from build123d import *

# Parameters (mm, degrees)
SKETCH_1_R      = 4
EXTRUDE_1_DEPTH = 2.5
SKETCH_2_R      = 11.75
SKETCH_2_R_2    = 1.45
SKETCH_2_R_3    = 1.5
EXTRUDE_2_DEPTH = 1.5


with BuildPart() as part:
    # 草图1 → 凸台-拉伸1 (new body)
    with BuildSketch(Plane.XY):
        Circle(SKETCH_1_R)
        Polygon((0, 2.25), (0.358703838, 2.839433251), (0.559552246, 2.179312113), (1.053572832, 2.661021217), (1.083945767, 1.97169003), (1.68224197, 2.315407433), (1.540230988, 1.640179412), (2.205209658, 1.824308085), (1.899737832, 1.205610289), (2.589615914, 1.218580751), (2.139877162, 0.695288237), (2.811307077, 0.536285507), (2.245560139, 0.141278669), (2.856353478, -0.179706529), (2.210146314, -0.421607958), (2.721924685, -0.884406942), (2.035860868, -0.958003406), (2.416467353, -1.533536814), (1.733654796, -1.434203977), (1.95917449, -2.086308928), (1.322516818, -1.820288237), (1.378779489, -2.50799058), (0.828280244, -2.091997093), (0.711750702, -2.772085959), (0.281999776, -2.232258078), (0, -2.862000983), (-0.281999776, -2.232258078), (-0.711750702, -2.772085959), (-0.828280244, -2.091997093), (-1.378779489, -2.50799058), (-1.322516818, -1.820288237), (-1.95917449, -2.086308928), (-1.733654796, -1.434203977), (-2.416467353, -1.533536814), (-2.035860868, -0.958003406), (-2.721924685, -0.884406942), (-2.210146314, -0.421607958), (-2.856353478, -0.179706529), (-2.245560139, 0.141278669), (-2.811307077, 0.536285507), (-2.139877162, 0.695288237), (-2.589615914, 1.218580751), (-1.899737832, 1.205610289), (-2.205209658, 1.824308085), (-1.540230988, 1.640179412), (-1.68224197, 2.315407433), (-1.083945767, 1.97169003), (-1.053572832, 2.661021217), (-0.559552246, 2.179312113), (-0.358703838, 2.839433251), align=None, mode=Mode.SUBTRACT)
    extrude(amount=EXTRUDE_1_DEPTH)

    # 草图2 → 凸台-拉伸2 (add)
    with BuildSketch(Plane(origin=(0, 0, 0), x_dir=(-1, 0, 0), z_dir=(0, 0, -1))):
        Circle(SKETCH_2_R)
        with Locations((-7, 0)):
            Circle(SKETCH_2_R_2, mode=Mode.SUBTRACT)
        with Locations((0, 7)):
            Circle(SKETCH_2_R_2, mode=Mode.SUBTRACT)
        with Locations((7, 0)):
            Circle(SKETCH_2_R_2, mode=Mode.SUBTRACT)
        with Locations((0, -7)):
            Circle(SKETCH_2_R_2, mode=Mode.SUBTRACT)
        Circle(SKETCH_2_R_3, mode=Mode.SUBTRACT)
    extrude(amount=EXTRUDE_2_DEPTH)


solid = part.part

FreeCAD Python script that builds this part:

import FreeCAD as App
import Part
import Sketcher

V = App.Vector


def add_polygon(sketch, points):
    """Adds a closed chain of lines whose ends are joined by coincident constraints."""
    first, n = sketch.GeometryCount, len(points)
    for a, b in zip(points, points[1:] + points[:1]):
        sketch.addGeometry(Part.LineSegment(App.Vector(*a, 0), App.Vector(*b, 0)), False)
    for i in range(n):
        sketch.addConstraint(Sketcher.Constraint("Coincident", first + i, 2, first + (i + 1) % n, 1))

doc = App.newDocument("Part")
body = doc.addObject("PartDesign::Body", "Body")

sketch1 = doc.addObject("Sketcher::SketchObject", "Sketch")
body.addObject(sketch1)
sketch1.AttachmentSupport = (doc.XY_Plane, [""])
sketch1.MapMode = "FlatFace"
sketch1.addGeometry(Part.Circle(V(0, 0, 0), V(0, 0, 1), 4), False)
add_polygon(sketch1, [(-0.358704, 2.839433), (0, 2.25), (0.358704, 2.839433), (0.559552, 2.179312), (1.053573, 2.661021), (1.083946, 1.97169), (1.682242, 2.315407), (1.540231, 1.640179), (2.20521, 1.824308), (1.899738, 1.20561), (2.589616, 1.218581), (2.139877, 0.695288), (2.811307, 0.536286), (2.24556, 0.141279), (2.856353, -0.179707), (2.210146, -0.421608), (2.721925, -0.884407), (2.035861, -0.958003), (2.416467, -1.533537), (1.733655, -1.434204), (1.959174, -2.086309), (1.322517, -1.820288), (1.378779, -2.507991), (0.82828, -2.091997), (0.711751, -2.772086), (0.282, -2.232258), (0, -2.862001), (-0.282, -2.232258), (-0.711751, -2.772086), (-0.82828, -2.091997), (-1.378779, -2.507991), (-1.322517, -1.820288), (-1.959174, -2.086309), (-1.733655, -1.434204), (-2.416467, -1.533537), (-2.035861, -0.958003), (-2.721925, -0.884407), (-2.210146, -0.421608), (-2.856353, -0.179707), (-2.24556, 0.141279), (-2.811307, 0.536286), (-2.139877, 0.695288), (-2.589616, 1.218581), (-1.899738, 1.20561), (-2.20521, 1.824308), (-1.540231, 1.640179), (-1.682242, 2.315407), (-1.083946, 1.97169), (-1.053573, 2.661021), (-0.559552, 2.179312)])
sketch1.addConstraint([
    Sketcher.Constraint("Coincident", 0, 3, -1, 1),
    Sketcher.Constraint("Symmetric", 25, 2, 27, 2, -2),
    Sketcher.Constraint("Symmetric", 24, 2, 28, 2, -2),
    Sketcher.Constraint("Symmetric", 23, 2, 29, 2, -2),
    Sketcher.Constraint("Symmetric", 22, 2, 30, 2, -2),
    Sketcher.Constraint("Symmetric", 21, 2, 31, 2, -2),
    Sketcher.Constraint("Symmetric", 20, 2, 32, 2, -2),
    Sketcher.Constraint("Symmetric", 19, 2, 33, 2, -2),
    Sketcher.Constraint("Symmetric", 18, 2, 34, 2, -2),
    Sketcher.Constraint("Symmetric", 17, 2, 35, 2, -2),
    Sketcher.Constraint("Symmetric", 16, 2, 36, 2, -2),
    Sketcher.Constraint("Symmetric", 15, 2, 37, 2, -2),
    Sketcher.Constraint("Symmetric", 14, 2, 38, 2, -2),
    Sketcher.Constraint("Symmetric", 13, 2, 39, 2, -2),
    Sketcher.Constraint("Symmetric", 12, 2, 40, 2, -2),
    Sketcher.Constraint("Symmetric", 11, 2, 41, 2, -2),
    Sketcher.Constraint("Symmetric", 10, 2, 42, 2, -2),
    Sketcher.Constraint("Symmetric", 9, 2, 43, 2, -2),
    Sketcher.Constraint("Symmetric", 8, 2, 44, 2, -2),
    Sketcher.Constraint("Symmetric", 7, 2, 45, 2, -2),
    Sketcher.Constraint("Symmetric", 6, 2, 46, 2, -2),
    Sketcher.Constraint("Symmetric", 5, 2, 47, 2, -2),
    Sketcher.Constraint("Symmetric", 4, 2, 48, 2, -2),
    Sketcher.Constraint("Symmetric", 3, 2, 49, 2, -2),
    Sketcher.Constraint("Symmetric", 2, 2, 50, 2, -2),
    Sketcher.Constraint("PointOnObject", 1, 2, -2),
    Sketcher.Constraint("PointOnObject", 26, 2, -2),
    Sketcher.Constraint("Equal", 2, 3),
    Sketcher.Constraint("Equal", 3, 4),
    Sketcher.Constraint("Equal", 4, 5),
    Sketcher.Constraint("Equal", 5, 6),
    Sketcher.Constraint("Equal", 6, 7),
    Sketcher.Constraint("Equal", 7, 8),
    Sketcher.Constraint("Equal", 8, 9),
    Sketcher.Constraint("Equal", 9, 10),
    Sketcher.Constraint("Equal", 10, 11),
    Sketcher.Constraint("Equal", 11, 12),
    Sketcher.Constraint("Equal", 12, 13),
    Sketcher.Constraint("Equal", 13, 14),
    Sketcher.Constraint("Equal", 14, 15),
    Sketcher.Constraint("Equal", 15, 16),
    Sketcher.Constraint("Equal", 16, 17),
    Sketcher.Constraint("Equal", 17, 18),
    Sketcher.Constraint("Equal", 18, 19),
    Sketcher.Constraint("Equal", 19, 20),
    Sketcher.Constraint("Equal", 20, 21),
    Sketcher.Constraint("Equal", 21, 22),
    Sketcher.Constraint("Equal", 22, 23),
    Sketcher.Constraint("Equal", 23, 24),
    Sketcher.Constraint("Equal", 24, 25),
    Sketcher.Constraint("Equal", 25, 26),
    Sketcher.Constraint("Diameter", 0, 8.0),
    Sketcher.Constraint("Distance", 1, 0.69),
    Sketcher.Constraint("DistanceY", -1, 1, 1, 2, 2.25),
    Sketcher.Constraint("DistanceX", -1, 1, 25, 2, 0.282),
    Sketcher.Constraint("DistanceY", 26, 2, -1, 1, 2.862001),
    Sketcher.Constraint("DistanceY", 8, 2, 6, 2, 0.491099),
    Sketcher.Constraint("DistanceY", 9, 2, 3, 2, 0.973702),
    Sketcher.Constraint("DistanceY", 10, 2, 7, 2, 0.421599),
    Sketcher.Constraint("DistanceY", 11, 2, 5, 2, 1.276402),
    Sketcher.Constraint("DistanceY", 13, 2, 7, 2, 1.498901),
    Sketcher.Constraint("DistanceY", 15, 2, 14, 2, 0.241901),
    Sketcher.Constraint("DistanceY", 16, 2, 15, 2, 0.462799),
    Sketcher.Constraint("DistanceX", 17, 2, 13, 2, 0.209699),
    Sketcher.Constraint("DistanceY", 19, 2, 17, 2, 0.476201),
    Sketcher.Constraint("DistanceY", 20, 2, 16, 2, 1.201902),
    Sketcher.Constraint("DistanceX", 23, 2, 22, 2, 0.550499),
    Sketcher.Constraint("DistanceX", 28, 2, 24, 2, 1.423501),
    Sketcher.Constraint("DistanceX", 38, 2, 33, 2, 1.122699),
    Sketcher.Constraint("DistanceY", -1, 1, 4, 2, 2.661021),
    Sketcher.Constraint("DistanceY", -1, 1, 5, 2, 1.97169),
    Sketcher.Constraint("DistanceX", -1, 1, 6, 2, 1.682242),
    Sketcher.Constraint("DistanceX", -1, 1, 7, 2, 1.540231),
    Sketcher.Constraint("DistanceY", -1, 1, 7, 2, 1.640179),
    Sketcher.Constraint("DistanceY", -1, 1, 9, 2, 1.20561),
    Sketcher.Constraint("DistanceX", -1, 1, 13, 2, 2.24556),
    Sketcher.Constraint("DistanceY", 20, 2, -1, 1, 2.086309),
    Sketcher.Constraint("DistanceY", 21, 2, -1, 1, 1.820288),
])
pad1 = doc.addObject("PartDesign::Pad", "Pad")
body.addObject(pad1)
pad1.Profile = sketch1
pad1.Length = 2.5

sketch2 = doc.addObject("Sketcher::SketchObject", "Sketch001")
body.addObject(sketch2)
sketch2.AttachmentSupport = (doc.XY_Plane, [""])
sketch2.MapMode = "FlatFace"
sketch2.addGeometry([
    Part.Circle(V(0, 0, 0), V(0, 0, 1), 11.8),
    Part.Circle(V(0, -7, 0), V(0, 0, 1), 1.4),
    Part.Circle(V(7, 0, 0), V(0, 0, 1), 1.4),
    Part.Circle(V(0, 0, 0), V(0, 0, 1), 1.5),
    Part.Circle(V(-7, 0, 0), V(0, 0, 1), 1.4),
    Part.Circle(V(0, 7, 0), V(0, 0, 1), 1.4),
], False)
sketch2.addConstraint([
    Sketcher.Constraint("Coincident", 0, 3, -1, 1),
    Sketcher.Constraint("Coincident", 3, 3, -1, 1),
    Sketcher.Constraint("Equal", 1, 2),
    Sketcher.Constraint("Equal", 2, 4),
    Sketcher.Constraint("Equal", 4, 5),
    Sketcher.Constraint("Symmetric", 2, 3, 4, 3, -1, 1),
    Sketcher.Constraint("Symmetric", 1, 3, 5, 3, -1, 1),
    Sketcher.Constraint("PointOnObject", 1, 3, -2),
    Sketcher.Constraint("PointOnObject", 2, 3, -1),
    Sketcher.Constraint("Diameter", 3, 3.0),
    Sketcher.Constraint("Diameter", 0, 23.5),
    Sketcher.Constraint("Diameter", 1, 2.9),
    Sketcher.Constraint("DistanceY", 1, 3, -1, 1, 7.0),
    Sketcher.Constraint("DistanceX", -1, 1, 2, 3, 7.0),
])
pad2 = doc.addObject("PartDesign::Pad", "Pad001")
body.addObject(pad2)
pad2.Profile = sketch2
pad2.Length = 1.5
pad2.Reversed = True

doc.recompute()
